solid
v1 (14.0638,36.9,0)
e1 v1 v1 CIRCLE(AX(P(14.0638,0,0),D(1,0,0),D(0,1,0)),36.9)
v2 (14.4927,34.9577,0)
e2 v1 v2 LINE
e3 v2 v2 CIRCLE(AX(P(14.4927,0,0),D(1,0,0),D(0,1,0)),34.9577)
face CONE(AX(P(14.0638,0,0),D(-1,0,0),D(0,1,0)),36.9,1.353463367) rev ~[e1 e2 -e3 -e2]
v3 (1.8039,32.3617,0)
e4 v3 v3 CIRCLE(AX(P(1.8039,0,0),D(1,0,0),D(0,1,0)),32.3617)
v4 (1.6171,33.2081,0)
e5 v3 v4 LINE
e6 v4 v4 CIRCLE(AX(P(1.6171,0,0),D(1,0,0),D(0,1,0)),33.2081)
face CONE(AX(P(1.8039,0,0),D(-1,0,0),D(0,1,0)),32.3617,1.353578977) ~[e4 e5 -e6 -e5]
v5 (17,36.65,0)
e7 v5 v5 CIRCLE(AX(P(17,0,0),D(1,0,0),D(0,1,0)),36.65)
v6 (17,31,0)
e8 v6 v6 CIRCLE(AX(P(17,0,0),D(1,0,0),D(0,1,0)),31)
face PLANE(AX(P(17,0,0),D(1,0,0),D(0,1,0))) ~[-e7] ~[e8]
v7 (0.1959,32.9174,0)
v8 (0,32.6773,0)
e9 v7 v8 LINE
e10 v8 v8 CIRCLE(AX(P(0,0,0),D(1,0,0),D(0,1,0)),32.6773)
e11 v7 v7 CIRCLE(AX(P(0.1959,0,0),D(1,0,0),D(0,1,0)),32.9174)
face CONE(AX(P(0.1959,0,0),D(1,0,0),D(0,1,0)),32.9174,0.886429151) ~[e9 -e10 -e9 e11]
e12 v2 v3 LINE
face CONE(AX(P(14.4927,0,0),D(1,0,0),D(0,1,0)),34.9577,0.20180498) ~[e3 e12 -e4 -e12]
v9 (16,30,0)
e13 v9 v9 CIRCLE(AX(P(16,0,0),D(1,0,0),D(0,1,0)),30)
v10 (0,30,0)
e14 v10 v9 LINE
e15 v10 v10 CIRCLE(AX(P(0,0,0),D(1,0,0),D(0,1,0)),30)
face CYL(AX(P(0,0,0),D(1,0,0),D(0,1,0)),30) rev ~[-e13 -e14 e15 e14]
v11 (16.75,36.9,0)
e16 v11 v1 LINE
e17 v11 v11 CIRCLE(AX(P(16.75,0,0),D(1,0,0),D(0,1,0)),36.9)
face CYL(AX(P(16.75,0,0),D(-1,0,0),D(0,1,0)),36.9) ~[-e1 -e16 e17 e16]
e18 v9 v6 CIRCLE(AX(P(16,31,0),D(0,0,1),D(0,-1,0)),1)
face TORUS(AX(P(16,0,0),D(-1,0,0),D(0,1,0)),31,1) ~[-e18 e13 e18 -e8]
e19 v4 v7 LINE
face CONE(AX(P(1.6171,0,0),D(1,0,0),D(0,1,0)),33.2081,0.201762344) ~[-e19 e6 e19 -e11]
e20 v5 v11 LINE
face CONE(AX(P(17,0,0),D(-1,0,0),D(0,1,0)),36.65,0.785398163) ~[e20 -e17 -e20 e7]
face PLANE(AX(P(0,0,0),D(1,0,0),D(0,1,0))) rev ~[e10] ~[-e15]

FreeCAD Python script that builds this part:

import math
import FreeCAD as App
import Part
import Sketcher
Q = App.Units.Quantity

doc = App.newDocument("Part")
body = doc.addObject("PartDesign::Body", "Body")

# Sketch on XY plane
sketch1 = body.newObject("Sketcher::SketchObject", "Sketch")
sketch1.AttachmentSupport = (doc.getObject("XY_Plane"), [""])
sketch1.MapMode = "FlatFace"
sketch1.addGeometry(Part.LineSegment(App.Vector(0.2, 32.92, 0), App.Vector(0, 32.68, 0)), False)
sketch1.addGeometry(Part.LineSegment(App.Vector(0, 32.68, 0), App.Vector(0, 30, 0)), False)
sketch1.addGeometry(Part.LineSegment(App.Vector(0, 30, 0), App.Vector(16, 30, 0)), False)
sketch1.addGeometry(Part.ArcOfCircle(Part.Circle(App.Vector(16, 31, 0), App.Vector(0, 0, 1), 1), math.radians(-90), math.radians(0)), False)
sketch1.addGeometry(Part.LineSegment(App.Vector(17, 31, 0), App.Vector(17, 36.65, 0)), False)
sketch1.addGeometry(Part.LineSegment(App.Vector(17, 36.65, 0), App.Vector(16.75, 36.9, 0)), False)
sketch1.addGeometry(Part.LineSegment(App.Vector(16.75, 36.9, 0), App.Vector(14.06, 36.9, 0)), False)
sketch1.addGeometry(Part.LineSegment(App.Vector(14.06, 36.9, 0), App.Vector(14.49, 34.96, 0)), False)
sketch1.addGeometry(Part.LineSegment(App.Vector(14.49, 34.96, 0), App.Vector(1.8, 32.36, 0)), False)
sketch1.addGeometry(Part.LineSegment(App.Vector(1.8, 32.36, 0), App.Vector(1.62, 33.21, 0)), False)
sketch1.addGeometry(Part.LineSegment(App.Vector(1.62, 33.21, 0), App.Vector(0.2, 32.92, 0)), False)
sketch1.addConstraint(Sketcher.Constraint("Coincident", 0, 2, 1, 1))
sketch1.addConstraint(Sketcher.Constraint("Coincident", 1, 2, 2, 1))
sketch1.addConstraint(Sketcher.Constraint("Tangent", 2, 2, 3, 1))
sketch1.addConstraint(Sketcher.Constraint("Tangent", 3, 2, 4, 1))
sketch1.addConstraint(Sketcher.Constraint("Coincident", 4, 2, 5, 1))
sketch1.addConstraint(Sketcher.Constraint("Coincident", 5, 2, 6, 1))
sketch1.addConstraint(Sketcher.Constraint("Coincident", 6, 2, 7, 1))
sketch1.addConstraint(Sketcher.Constraint("Coincident", 7, 2, 8, 1))
sketch1.addConstraint(Sketcher.Constraint("Coincident", 8, 2, 9, 1))
sketch1.addConstraint(Sketcher.Constraint("Coincident", 9, 2, 10, 1))
sketch1.addConstraint(Sketcher.Constraint("Coincident", 10, 2, 0, 1))
sketch1.addConstraint(Sketcher.Constraint("Vertical", 1))
sketch1.addConstraint(Sketcher.Constraint("Horizontal", 2))
sketch1.addConstraint(Sketcher.Constraint("Vertical", 4))
sketch1.addConstraint(Sketcher.Constraint("Horizontal", 6))
sketch1.addConstraint(Sketcher.Constraint("PointOnObject", 0, 2, -2))
sketch1.addConstraint(Sketcher.Constraint("Parallel", 7, 9))
sketch1.addConstraint(Sketcher.Constraint("Parallel", 8, 10))
sketch1.addConstraint(Sketcher.Constraint("Radius", 3, 1.0))
sketch1.addConstraint(Sketcher.Constraint("DistanceX", 2, 1, 2, 2, 16.0))
sketch1.addConstraint(Sketcher.Constraint("Angle", 5, Q("135 deg")))
sketch1.addConstraint(Sketcher.Constraint("DistanceY", -1, 1, 3, 3, 31.0))
sketch1.addConstraint(Sketcher.Constraint("DistanceY", 4, 1, 4, 2, 5.65))
sketch1.addConstraint(Sketcher.Constraint("DistanceY", -1, 1, 5, 2, 36.9))
sketch1.addConstraint(Sketcher.Constraint("Angle", 10, Q("-168.4399 deg")))
sketch1.addConstraint(Sketcher.Constraint("DistanceX", 8, 2, 6, 2, 12.26))
sketch1.addConstraint(Sketcher.Constraint("DistanceY", 0, 2, 10, 2, 0.24))
sketch1.addConstraint(Sketcher.Constraint("Distance", 7, 1.989))
sketch1.addConstraint(Sketcher.Constraint("DistanceX", 6, 2, 6, 1, 2.6862))
sketch1.addConstraint(Sketcher.Constraint("DistanceY", 1, 2, 1, 1, 2.6773))
sketch1.addConstraint(Sketcher.Constraint("DistanceX", -1, 1, 9, 2, 1.617))
sketch1.addConstraint(Sketcher.Constraint("DistanceY", -1, 1, 9, 2, 33.208))
revolution = body.newObject("PartDesign::Revolution", "Revolution")
revolution.Profile = sketch1
revolution.ReferenceAxis = (sketch1, ["H_Axis"])
revolution.Angle = 360

doc.recompute()
